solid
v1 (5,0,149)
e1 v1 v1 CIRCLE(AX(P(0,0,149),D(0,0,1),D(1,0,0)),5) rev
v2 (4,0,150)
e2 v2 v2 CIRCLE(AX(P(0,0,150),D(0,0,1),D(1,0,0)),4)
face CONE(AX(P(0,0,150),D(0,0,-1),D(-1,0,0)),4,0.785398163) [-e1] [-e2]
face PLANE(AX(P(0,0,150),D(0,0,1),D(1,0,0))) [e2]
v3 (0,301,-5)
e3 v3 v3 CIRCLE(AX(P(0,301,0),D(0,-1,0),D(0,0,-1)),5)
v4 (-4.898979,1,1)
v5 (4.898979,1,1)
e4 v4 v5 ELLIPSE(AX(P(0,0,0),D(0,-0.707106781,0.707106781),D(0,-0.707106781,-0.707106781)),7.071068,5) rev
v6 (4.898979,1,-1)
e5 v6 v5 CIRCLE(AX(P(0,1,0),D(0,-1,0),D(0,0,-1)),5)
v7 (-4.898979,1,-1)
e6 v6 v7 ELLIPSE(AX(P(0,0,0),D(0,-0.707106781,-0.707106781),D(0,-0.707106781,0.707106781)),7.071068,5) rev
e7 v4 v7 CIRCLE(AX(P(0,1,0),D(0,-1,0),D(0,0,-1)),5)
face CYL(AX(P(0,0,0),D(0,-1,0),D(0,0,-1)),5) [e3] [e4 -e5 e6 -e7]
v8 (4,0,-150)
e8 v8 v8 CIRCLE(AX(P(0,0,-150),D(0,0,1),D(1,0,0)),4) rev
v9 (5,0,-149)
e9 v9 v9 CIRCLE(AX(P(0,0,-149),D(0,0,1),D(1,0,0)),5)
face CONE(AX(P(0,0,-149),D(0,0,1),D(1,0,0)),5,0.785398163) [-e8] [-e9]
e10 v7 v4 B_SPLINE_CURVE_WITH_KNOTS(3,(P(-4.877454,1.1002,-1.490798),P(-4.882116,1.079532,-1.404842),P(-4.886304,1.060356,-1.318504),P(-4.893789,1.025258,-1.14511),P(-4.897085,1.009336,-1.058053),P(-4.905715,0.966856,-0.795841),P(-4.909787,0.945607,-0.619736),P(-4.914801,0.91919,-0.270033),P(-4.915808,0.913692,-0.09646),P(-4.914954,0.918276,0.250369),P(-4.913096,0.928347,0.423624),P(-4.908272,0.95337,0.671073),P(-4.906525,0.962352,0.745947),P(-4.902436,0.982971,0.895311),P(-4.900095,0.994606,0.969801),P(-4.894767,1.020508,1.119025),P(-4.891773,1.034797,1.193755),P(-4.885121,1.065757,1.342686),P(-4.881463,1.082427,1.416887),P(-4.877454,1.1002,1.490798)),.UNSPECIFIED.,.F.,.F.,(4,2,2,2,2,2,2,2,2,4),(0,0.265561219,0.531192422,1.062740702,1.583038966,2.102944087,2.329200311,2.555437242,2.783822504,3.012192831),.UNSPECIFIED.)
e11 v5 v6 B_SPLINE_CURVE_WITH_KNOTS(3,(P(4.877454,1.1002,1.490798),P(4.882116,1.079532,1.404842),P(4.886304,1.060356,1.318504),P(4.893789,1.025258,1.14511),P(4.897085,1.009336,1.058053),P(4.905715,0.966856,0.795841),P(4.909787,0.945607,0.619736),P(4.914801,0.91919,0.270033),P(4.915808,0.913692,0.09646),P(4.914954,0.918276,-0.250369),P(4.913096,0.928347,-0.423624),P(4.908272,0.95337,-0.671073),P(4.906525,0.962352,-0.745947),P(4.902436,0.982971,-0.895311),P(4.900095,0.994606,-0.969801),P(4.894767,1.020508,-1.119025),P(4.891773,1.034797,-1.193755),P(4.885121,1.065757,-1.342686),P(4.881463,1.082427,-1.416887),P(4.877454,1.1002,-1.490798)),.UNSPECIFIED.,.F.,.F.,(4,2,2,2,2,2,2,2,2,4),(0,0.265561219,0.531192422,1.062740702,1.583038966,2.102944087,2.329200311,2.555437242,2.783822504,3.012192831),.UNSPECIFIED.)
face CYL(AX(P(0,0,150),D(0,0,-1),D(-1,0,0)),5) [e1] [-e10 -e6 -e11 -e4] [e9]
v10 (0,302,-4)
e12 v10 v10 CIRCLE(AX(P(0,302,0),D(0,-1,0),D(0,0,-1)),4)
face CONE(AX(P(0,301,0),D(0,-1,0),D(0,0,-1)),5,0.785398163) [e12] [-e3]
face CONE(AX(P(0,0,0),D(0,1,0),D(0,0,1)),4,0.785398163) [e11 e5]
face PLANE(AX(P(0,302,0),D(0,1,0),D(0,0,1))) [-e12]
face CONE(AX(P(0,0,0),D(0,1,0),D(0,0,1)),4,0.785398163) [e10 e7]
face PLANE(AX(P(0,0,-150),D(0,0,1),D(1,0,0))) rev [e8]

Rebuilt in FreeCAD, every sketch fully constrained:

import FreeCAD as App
import Part
import Sketcher


def edges_at(feature, points):
    """Names of the edges that pass closest to the given points."""
    edges = feature.Shape.Edges
    near = lambda p: min(range(len(edges)), key=lambda i: edges[i].distToShape(Part.Vertex(*p))[0])
    return sorted({f"Edge{near(p) + 1}" for p in points})


def add_polygon(sketch, points):
    """Adds a closed chain of lines whose ends are joined by coincident constraints."""
    first, n = sketch.GeometryCount, len(points)
    for a, b in zip(points, points[1:] + points[:1]):
        sketch.addGeometry(Part.LineSegment(App.Vector(*a, 0), App.Vector(*b, 0)), False)
    for i in range(n):
        sketch.addConstraint(Sketcher.Constraint("Coincident", first + i, 2, first + (i + 1) % n, 1))

doc = App.newDocument("Part")
params = doc.addObject("Spreadsheet::Sheet", "Params")
for row, (alias, value) in enumerate([
    ("sketch1_width", "4 mm"),
    ("sketch1_height", "302 mm"),
    ("sketch1_height2", "300 mm"),
    ("revolution_angle", "360 deg"),
    ("sketch2_diameter", "10 mm"),
    ("pad1_length", "300 mm"),
    ("chamfer_size", "1 mm"),
], start=1):
    params.set(f"A{row}", alias)
    params.set(f"B{row}", "=" + value)
    params.setAlias(f"B{row}", alias)

body = doc.addObject("PartDesign::Body", "Body")

# Sketch on XY plane
sketch1 = body.newObject("Sketcher::SketchObject", "Sketch")
sketch1.AttachmentSupport = (doc.getObject("XY_Plane"), [""])
sketch1.MapMode = "FlatFace"
add_polygon(sketch1, [(0, 302), (0, 0), (4, 0), (5, 1), (5, 301), (4, 302)])  # lines 0-5
sketch1.addConstraint([
    Sketcher.Constraint("Vertical", 0),
    Sketcher.Constraint("Horizontal", 1),
    Sketcher.Constraint("Vertical", 3),
    Sketcher.Constraint("Horizontal", 5),
    Sketcher.Constraint("Coincident", 0, 2, -1, 1),
    Sketcher.Constraint("Perpendicular", 2, 4),
    Sketcher.Constraint("Vertical", 1, 2, 4, 2),
    Sketcher.Constraint("Equal", 2, 4),
    Sketcher.Constraint("DistanceX", 1, 1, 1, 2, 4.0),
    Sketcher.Constraint("DistanceY", 0, 2, 0, 1, 302.0),
    Sketcher.Constraint("DistanceY", 3, 1, 3, 2, 300.0),
])
sketch1.setExpression("Constraints[14]", "Params.sketch1_width")
sketch1.setExpression("Constraints[15]", "Params.sketch1_height")
sketch1.setExpression("Constraints[16]", "Params.sketch1_height2")
revolution = body.newObject("PartDesign::Revolution", "Revolution")
revolution.Profile = sketch1
revolution.ReferenceAxis = (sketch1, ["V_Axis"])
revolution.setExpression("Angle", "Params.revolution_angle")

# Sketch on XY plane
sketch2 = body.newObject("Sketcher::SketchObject", "Sketch001")
sketch2.AttachmentSupport = (doc.getObject("XY_Plane"), [""])
sketch2.MapMode = "FlatFace"
sketch2.addGeometry(Part.Circle(App.Vector(0, 0, 0), App.Vector(0, 0, 1), 5), False)
sketch2.addConstraint([
    Sketcher.Constraint("Coincident", 0, 3, -1, 1),
    Sketcher.Constraint("Diameter", 0, 10.0),
])
sketch2.setExpression("Constraints[1]", "Params.sketch2_diameter")
pad1 = body.newObject("PartDesign::Pad", "Pad")
pad1.Profile = sketch2
pad1.setExpression("Length", "Params.pad1_length")
pad1.Midplane = True
doc.recompute()

chamfer = body.newObject("PartDesign::Chamfer", "Chamfer")
chamfer.Base = (pad1, edges_at(pad1, [(-5, 0, -150), (-5, 0, 150)]))
chamfer.setExpression("Size", "Params.chamfer_size")

doc.recompute()
